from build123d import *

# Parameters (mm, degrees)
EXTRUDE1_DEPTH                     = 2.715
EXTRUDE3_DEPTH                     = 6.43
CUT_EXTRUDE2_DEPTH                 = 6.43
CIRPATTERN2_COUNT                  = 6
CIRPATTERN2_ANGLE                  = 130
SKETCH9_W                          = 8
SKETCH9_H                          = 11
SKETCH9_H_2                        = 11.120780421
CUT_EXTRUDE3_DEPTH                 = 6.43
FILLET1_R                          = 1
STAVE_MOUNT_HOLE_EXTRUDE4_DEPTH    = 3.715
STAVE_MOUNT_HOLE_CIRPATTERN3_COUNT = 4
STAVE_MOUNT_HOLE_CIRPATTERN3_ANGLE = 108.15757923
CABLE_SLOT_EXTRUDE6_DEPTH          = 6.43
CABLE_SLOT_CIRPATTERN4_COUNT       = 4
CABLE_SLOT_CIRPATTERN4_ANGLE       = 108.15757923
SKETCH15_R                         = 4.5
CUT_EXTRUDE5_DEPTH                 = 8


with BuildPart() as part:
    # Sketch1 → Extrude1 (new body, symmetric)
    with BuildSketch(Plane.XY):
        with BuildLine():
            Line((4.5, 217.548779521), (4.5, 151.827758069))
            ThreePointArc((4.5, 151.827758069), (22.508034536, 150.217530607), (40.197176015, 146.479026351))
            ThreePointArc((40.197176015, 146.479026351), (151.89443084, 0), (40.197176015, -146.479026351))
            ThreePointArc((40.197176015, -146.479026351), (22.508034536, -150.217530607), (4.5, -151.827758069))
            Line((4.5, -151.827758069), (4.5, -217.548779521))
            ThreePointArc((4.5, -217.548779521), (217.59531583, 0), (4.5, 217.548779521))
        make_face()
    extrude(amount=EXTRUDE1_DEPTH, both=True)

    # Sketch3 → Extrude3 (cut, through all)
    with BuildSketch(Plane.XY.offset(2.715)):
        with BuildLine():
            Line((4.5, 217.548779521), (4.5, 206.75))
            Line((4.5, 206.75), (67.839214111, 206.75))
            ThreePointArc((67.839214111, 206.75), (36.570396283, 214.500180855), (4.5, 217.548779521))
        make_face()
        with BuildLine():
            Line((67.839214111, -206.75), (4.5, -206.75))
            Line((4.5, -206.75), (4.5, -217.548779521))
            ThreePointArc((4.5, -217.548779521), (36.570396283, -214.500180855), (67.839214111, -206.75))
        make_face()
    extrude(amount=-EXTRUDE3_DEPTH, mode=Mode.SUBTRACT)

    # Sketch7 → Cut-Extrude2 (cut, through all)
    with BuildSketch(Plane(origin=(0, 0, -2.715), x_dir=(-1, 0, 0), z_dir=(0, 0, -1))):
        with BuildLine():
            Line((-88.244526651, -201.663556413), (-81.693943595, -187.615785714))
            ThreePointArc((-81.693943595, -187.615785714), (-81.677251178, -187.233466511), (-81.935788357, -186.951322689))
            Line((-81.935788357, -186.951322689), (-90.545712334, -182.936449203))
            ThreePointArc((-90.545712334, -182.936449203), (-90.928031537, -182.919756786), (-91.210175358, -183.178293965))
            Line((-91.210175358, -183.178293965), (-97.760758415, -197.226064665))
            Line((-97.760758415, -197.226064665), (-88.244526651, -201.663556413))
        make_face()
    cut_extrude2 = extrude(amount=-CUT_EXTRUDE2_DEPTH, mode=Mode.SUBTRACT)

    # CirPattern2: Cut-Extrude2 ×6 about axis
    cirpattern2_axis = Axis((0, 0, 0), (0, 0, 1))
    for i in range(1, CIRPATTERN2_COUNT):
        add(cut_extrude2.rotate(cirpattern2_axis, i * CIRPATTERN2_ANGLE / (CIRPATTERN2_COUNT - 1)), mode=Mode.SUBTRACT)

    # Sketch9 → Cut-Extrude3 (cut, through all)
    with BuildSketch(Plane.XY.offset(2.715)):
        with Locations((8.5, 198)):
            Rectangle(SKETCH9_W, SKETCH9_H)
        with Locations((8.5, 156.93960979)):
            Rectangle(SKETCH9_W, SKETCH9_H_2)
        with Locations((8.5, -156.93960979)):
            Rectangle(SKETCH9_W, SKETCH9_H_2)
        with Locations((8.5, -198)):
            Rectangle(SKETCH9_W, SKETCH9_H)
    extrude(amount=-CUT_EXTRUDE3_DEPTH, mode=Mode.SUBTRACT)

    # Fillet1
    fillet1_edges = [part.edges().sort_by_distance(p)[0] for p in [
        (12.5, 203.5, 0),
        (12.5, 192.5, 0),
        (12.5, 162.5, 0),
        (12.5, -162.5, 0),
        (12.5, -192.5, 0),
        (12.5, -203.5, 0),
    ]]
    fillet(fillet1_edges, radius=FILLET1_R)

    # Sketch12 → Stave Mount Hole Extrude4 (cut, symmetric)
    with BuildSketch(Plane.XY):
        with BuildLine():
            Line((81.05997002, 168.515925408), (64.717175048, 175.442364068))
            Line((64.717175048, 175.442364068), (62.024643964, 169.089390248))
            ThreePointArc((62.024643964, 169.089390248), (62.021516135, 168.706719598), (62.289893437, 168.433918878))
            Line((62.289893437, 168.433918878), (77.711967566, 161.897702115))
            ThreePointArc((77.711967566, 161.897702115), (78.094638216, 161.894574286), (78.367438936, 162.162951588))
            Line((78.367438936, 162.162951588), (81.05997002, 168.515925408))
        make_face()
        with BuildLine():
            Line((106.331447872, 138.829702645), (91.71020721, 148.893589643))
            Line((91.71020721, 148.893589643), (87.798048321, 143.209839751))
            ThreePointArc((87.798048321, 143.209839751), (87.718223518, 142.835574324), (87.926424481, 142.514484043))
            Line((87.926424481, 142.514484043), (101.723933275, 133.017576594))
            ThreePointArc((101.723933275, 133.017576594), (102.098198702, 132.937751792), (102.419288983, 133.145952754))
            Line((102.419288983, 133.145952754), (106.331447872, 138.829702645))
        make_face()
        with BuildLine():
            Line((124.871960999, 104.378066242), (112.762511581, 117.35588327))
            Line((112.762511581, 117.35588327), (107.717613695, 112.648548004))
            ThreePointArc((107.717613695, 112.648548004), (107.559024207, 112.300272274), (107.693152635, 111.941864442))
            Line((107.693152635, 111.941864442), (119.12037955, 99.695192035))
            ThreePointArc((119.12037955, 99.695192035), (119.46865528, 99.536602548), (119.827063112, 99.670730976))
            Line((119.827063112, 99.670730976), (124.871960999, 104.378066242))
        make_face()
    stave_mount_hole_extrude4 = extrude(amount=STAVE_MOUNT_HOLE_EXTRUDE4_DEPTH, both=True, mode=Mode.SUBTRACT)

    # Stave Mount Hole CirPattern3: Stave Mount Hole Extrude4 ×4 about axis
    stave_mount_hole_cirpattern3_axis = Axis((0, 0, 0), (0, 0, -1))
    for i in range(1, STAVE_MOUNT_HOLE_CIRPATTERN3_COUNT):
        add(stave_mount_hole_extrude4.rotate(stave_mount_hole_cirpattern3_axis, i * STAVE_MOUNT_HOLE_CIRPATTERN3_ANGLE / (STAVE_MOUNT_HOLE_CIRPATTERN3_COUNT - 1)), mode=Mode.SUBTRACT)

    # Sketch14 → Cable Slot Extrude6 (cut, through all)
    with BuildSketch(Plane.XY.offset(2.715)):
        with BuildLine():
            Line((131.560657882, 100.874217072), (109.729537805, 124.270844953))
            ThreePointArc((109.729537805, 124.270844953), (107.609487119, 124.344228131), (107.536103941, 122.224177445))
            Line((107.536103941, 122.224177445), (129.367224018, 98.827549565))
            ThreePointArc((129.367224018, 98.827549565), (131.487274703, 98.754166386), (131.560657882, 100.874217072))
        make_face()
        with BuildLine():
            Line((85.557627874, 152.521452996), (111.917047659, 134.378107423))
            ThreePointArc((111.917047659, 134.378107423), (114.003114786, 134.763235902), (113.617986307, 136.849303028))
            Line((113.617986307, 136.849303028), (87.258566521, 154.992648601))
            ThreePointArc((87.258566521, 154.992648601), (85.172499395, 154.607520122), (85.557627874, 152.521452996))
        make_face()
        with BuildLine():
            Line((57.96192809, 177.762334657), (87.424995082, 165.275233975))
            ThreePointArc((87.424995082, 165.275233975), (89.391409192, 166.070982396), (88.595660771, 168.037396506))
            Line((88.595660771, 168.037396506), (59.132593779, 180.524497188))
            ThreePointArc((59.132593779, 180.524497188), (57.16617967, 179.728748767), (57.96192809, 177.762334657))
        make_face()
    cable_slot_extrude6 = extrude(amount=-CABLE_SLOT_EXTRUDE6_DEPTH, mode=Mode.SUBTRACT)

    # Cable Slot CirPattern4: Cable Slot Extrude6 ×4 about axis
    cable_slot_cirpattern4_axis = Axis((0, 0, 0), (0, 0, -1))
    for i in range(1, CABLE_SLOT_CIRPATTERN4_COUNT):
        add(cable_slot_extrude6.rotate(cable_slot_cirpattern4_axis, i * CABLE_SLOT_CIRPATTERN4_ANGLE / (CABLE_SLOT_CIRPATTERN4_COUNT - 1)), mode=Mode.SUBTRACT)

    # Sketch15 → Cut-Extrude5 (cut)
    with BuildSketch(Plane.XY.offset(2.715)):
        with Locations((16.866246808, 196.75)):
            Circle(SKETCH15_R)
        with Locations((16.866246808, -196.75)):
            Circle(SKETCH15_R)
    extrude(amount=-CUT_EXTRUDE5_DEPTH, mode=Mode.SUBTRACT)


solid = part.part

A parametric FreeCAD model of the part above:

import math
import FreeCAD as App
import Part
import Sketcher
Q = App.Units.Quantity


def edges_at(feature, points):
    """Names of the edges that pass closest to the given points."""
    edges = feature.Shape.Edges
    near = lambda p: min(range(len(edges)), key=lambda i: edges[i].distToShape(Part.Vertex(*p))[0])
    return sorted({f"Edge{near(p) + 1}" for p in points})


def add_polygon(sketch, points):
    """Adds a closed chain of lines whose ends are joined by coincident constraints."""
    first, n = sketch.GeometryCount, len(points)
    for a, b in zip(points, points[1:] + points[:1]):
        sketch.addGeometry(Part.LineSegment(App.Vector(*a, 0), App.Vector(*b, 0)), False)
    for i in range(n):
        sketch.addConstraint(Sketcher.Constraint("Coincident", first + i, 2, first + (i + 1) % n, 1))

doc = App.newDocument("Part")
body = doc.addObject("PartDesign::Body", "Body")

# Sketch on XY plane
sketch1 = body.newObject("Sketcher::SketchObject", "Sketch")
sketch1.AttachmentSupport = (doc.getObject("XY_Plane"), [""])
sketch1.MapMode = "FlatFace"
sketch1.addGeometry([
    Part.LineSegment(App.Vector(4, 218, 0), App.Vector(4, 152, 0)),  # 0
    Part.ArcOfCircle(Part.Circle(App.Vector(0, 0, 0), App.Vector(0, 0, 1), 152), math.radians(74.65), math.radians(88.3)),  # 1
    Part.ArcOfCircle(Part.Circle(App.Vector(0, 0, 0), App.Vector(0, 0, 1), 152), math.radians(-75), math.radians(75)),  # 2
    Part.ArcOfCircle(Part.Circle(App.Vector(0, 0, 0), App.Vector(0, 0, 1), 152), math.radians(-88.3), math.radians(-74.65)),  # 3
    Part.LineSegment(App.Vector(4, -152, 0), App.Vector(4, -218, 0)),  # 4
    Part.ArcOfCircle(Part.Circle(App.Vector(0, 0, 0), App.Vector(0, 0, 1), 218), math.radians(-89), math.radians(89)),  # 5
], False)
sketch1.addConstraint([
    Sketcher.Constraint("Coincident", 0, 2, 1, 2),
    Sketcher.Constraint("Tangent", 1, 1, 2, 2),
    Sketcher.Constraint("Tangent", 2, 1, 3, 2),
    Sketcher.Constraint("Coincident", 3, 1, 4, 1),
    Sketcher.Constraint("Coincident", 4, 2, 5, 1),
    Sketcher.Constraint("Coincident", 5, 2, 0, 1),
    Sketcher.Constraint("Vertical", 0),
    Sketcher.Constraint("Vertical", 4),
    Sketcher.Constraint("Coincident", 1, 3, -1, 1),
    Sketcher.Constraint("Coincident", 3, 3, -1, 1),
    Sketcher.Constraint("Coincident", 5, 3, -1, 1),
    Sketcher.Constraint("Vertical", 1, 1, 2, 1),
    Sketcher.Constraint("Vertical", 0, 2, 3, 1),
    Sketcher.Constraint("DistanceX", -1, 1, 0, 2, Q("4.5 mm")),
    Sketcher.Constraint("Radius", 1, Q("151.894431 mm")),
    Sketcher.Constraint("Radius", 5, Q("217.595316 mm")),
    Sketcher.Constraint("DistanceY", 1, 1, 0, 2, Q("5.348732 mm")),
])
pad1 = body.newObject("PartDesign::Pad", "Pad")
pad1.Profile = sketch1
pad1.Length = 5.43
pad1.Midplane = True

# Sketch on XY plane
sketch2 = body.newObject("Sketcher::SketchObject", "Sketch001")
sketch2.AttachmentSupport = (doc.getObject("XY_Plane"), [""])
sketch2.MapMode = "FlatFace"
sketch2.AttachmentOffset = App.Placement(App.Vector(0, 0, 2.715), App.Rotation())
sketch2.addGeometry([
    Part.LineSegment(App.Vector(4, 218, 0), App.Vector(4, 207, 0)),  # 0
    Part.LineSegment(App.Vector(4, 207, 0), App.Vector(68, 207, 0)),  # 1
    Part.ArcOfCircle(Part.Circle(App.Vector(0, 0, 0), App.Vector(0, 0, 1), 218), math.radians(71.83), math.radians(88.82)),  # 2
    Part.LineSegment(App.Vector(68, -207, 0), App.Vector(4, -207, 0)),  # 3
    Part.LineSegment(App.Vector(4, -207, 0), App.Vector(4, -218, 0)),  # 4
    Part.ArcOfCircle(Part.Circle(App.Vector(0, 0, 0), App.Vector(0, 0, 1), 218), math.radians(-88.82), math.radians(-71.83)),  # 5
], False)
sketch2.addConstraint([
    Sketcher.Constraint("Coincident", 0, 2, 1, 1),
    Sketcher.Constraint("Coincident", 1, 2, 2, 1),
    Sketcher.Constraint("Coincident", 2, 2, 0, 1),
    Sketcher.Constraint("Coincident", 3, 2, 4, 1),
    Sketcher.Constraint("Coincident", 4, 2, 5, 1),
    Sketcher.Constraint("Coincident", 5, 2, 3, 1),
    Sketcher.Constraint("Vertical", 0),
    Sketcher.Constraint("Horizontal", 1),
    Sketcher.Constraint("Horizontal", 3),
    Sketcher.Constraint("Vertical", 4),
    Sketcher.Constraint("Coincident", 2, 3, -1, 1),
    Sketcher.Constraint("Coincident", 5, 3, -1, 1),
    Sketcher.Constraint("Equal", 2, 5),
    Sketcher.Constraint("Symmetric", 0, 2, 3, 2, -1),
    Sketcher.Constraint("DistanceX", -1, 1, 0, 2, Q("4.5 mm")),
    Sketcher.Constraint("DistanceY", 3, 2, 0, 2, Q("413.5 mm")),
    Sketcher.Constraint("Radius", 2, Q("217.595316 mm")),
])
pocket1 = body.newObject("PartDesign::Pocket", "Pocket")
pocket1.Profile = sketch2
pocket1.Type = "ThroughAll"

# Sketch on XY plane
sketch3 = body.newObject("Sketcher::SketchObject", "Sketch002")
sketch3.AttachmentSupport = (doc.getObject("XY_Plane"), [""])
sketch3.MapMode = "FlatFace"
sketch3.AttachmentOffset = App.Placement(App.Vector(0, 0, -2.715), App.Rotation())
sketch3.addGeometry([
    Part.LineSegment(App.Vector(88.24, -201.66, 0), App.Vector(81.69, -187.62, 0)),  # 0
    Part.ArcOfCircle(Part.Circle(App.Vector(82.15, -187.4, 0), App.Vector(0, 0, 1), 0.5), math.radians(115), math.radians(205)),  # 1
    Part.LineSegment(App.Vector(81.94, -186.95, 0), App.Vector(90.55, -182.94, 0)),  # 2
    Part.ArcOfCircle(Part.Circle(App.Vector(90.76, -183.39, 0), App.Vector(0, 0, 1), 0.5), math.radians(25), math.radians(115)),  # 3
    Part.LineSegment(App.Vector(91.21, -183.18, 0), App.Vector(97.76, -197.23, 0)),  # 4
    Part.LineSegment(App.Vector(97.76, -197.23, 0), App.Vector(88.24, -201.66, 0)),  # 5
], False)
sketch3.addConstraint([
    Sketcher.Constraint("Tangent", 0, 2, 1, 2),
    Sketcher.Constraint("Tangent", 1, 1, 2, 1),
    Sketcher.Constraint("Tangent", 2, 2, 3, 2),
    Sketcher.Constraint("Tangent", 3, 1, 4, 1),
    Sketcher.Constraint("Coincident", 4, 2, 5, 1),
    Sketcher.Constraint("Coincident", 5, 2, 0, 1),
    Sketcher.Constraint("Equal", 1, 3),
    Sketcher.Constraint("Perpendicular", 0, 2),
    Sketcher.Constraint("Perpendicular", 2, 4),
    Sketcher.Constraint("Perpendicular", 4, 5),
    Sketcher.Constraint("Radius", 1, Q("0.5 mm")),
    Sketcher.Constraint("Angle", 0, Q("115 deg")),
    Sketcher.Constraint("Distance", 0, Q("15.5 mm")),
    Sketcher.Constraint("Distance", 2, Q("9.5 mm")),
    Sketcher.Constraint("DistanceX", -1, 1, 3, 3, Q("90.757021 mm")),
    Sketcher.Constraint("DistanceY", 2, 2, -1, 1, Q("182.936449 mm")),
])
pocket2 = body.newObject("PartDesign::Pocket", "Pocket001")
pocket2.Profile = sketch3
pocket2.Type = "ThroughAll"
pocket2.Reversed = True
doc.recompute()

polarpattern = body.newObject("PartDesign::PolarPattern", "PolarPattern")
polarpattern.Originals = [pocket2]
polarpattern.Axis = (doc.getObject("Z_Axis"), [""])
polarpattern.Angle = 130
polarpattern.Occurrences = 6
body.Tip = polarpattern

# Sketch on XY plane
sketch4 = body.newObject("Sketcher::SketchObject", "Sketch003")
sketch4.AttachmentSupport = (doc.getObject("XY_Plane"), [""])
sketch4.MapMode = "FlatFace"
sketch4.AttachmentOffset = App.Placement(App.Vector(0, 0, 2.715), App.Rotation())
add_polygon(sketch4, [(4, 204), (4, 192), (12, 192), (12, 204)])  # lines 0-3
add_polygon(sketch4, [(4, 162), (4, 151), (12, 151), (12, 162)])  # lines 4-7
add_polygon(sketch4, [(4, -151), (4, -162), (12, -162), (12, -151)])  # lines 8-11
add_polygon(sketch4, [(4, -192), (4, -204), (12, -204), (12, -192)])  # lines 12-15
sketch4.addConstraint([
    Sketcher.Constraint("Vertical", 0),
    Sketcher.Constraint("Horizontal", 1),
    Sketcher.Constraint("Vertical", 2),
    Sketcher.Constraint("Horizontal", 3),
    Sketcher.Constraint("Vertical", 4),
    Sketcher.Constraint("Horizontal", 5),
    Sketcher.Constraint("Vertical", 6),
    Sketcher.Constraint("Horizontal", 7),
    Sketcher.Constraint("Vertical", 8),
    Sketcher.Constraint("Horizontal", 9),
    Sketcher.Constraint("Vertical", 10),
    Sketcher.Constraint("Horizontal", 11),
    Sketcher.Constraint("Vertical", 12),
    Sketcher.Constraint("Horizontal", 13),
    Sketcher.Constraint("Vertical", 14),
    Sketcher.Constraint("Horizontal", 15),
    Sketcher.Constraint("Symmetric", 7, 2, 8, 2, -1),
    Sketcher.Constraint("Symmetric", 5, 2, 10, 2, -1),
    Sketcher.Constraint("Symmetric", 3, 2, 12, 2, -1),
    Sketcher.Constraint("Symmetric", 1, 2, 14, 2, -1),
    Sketcher.Constraint("Vertical", 3, 2, 4, 2),
    Sketcher.Constraint("Vertical", 2, 2, 5, 2),
    Sketcher.Constraint("DistanceX", 1, 1, 1, 2, Q("8 mm")),
    Sketcher.Constraint("DistanceY", 0, 2, 0, 1, Q("11 mm")),
    Sketcher.Constraint("DistanceY", 6, 2, 1, 2, Q("30 mm")),
    Sketcher.Constraint("DistanceY", 8, 2, 7, 2, Q("325 mm")),
    Sketcher.Constraint("DistanceX", -1, 1, 0, 2, Q("4.5 mm")),
    Sketcher.Constraint("DistanceY", 4, 2, 4, 1, Q("11.12078 mm")),
])
pocket3 = body.newObject("PartDesign::Pocket", "Pocket002")
pocket3.Profile = sketch4
pocket3.Type = "ThroughAll"
doc.recompute()

fillet = body.newObject("PartDesign::Fillet", "Fillet")
fillet.Base = (pocket3, edges_at(pocket3, [
    (12.5, 203.5, 0),
    (12.5, 192.5, 0),
    (12.5, 162.5, 0),
    (12.5, -162.5, 0),
    (12.5, -192.5, 0),
    (12.5, -203.5, 0),
]))
fillet.Radius = 1

# Sketch on XY plane
sketch5 = body.newObject("Sketcher::SketchObject", "Sketch004")
sketch5.AttachmentSupport = (doc.getObject("XY_Plane"), [""])
sketch5.MapMode = "FlatFace"
sketch5.addGeometry([
    Part.LineSegment(App.Vector(81.06, 168.52, 0), App.Vector(64.72, 175.44, 0)),  # 0
    Part.LineSegment(App.Vector(64.72, 175.44, 0), App.Vector(62.02, 169.09, 0)),  # 1
    Part.ArcOfCircle(Part.Circle(App.Vector(62.49, 168.89, 0), App.Vector(0, 0, 1), 0.5), math.radians(157), math.radians(247)),  # 2
    Part.LineSegment(App.Vector(62.29, 168.43, 0), App.Vector(77.71, 161.9, 0)),  # 3
    Part.ArcOfCircle(Part.Circle(App.Vector(77.91, 162.36, 0), App.Vector(0, 0, 1), 0.5), math.radians(-113), math.radians(-23)),  # 4
    Part.LineSegment(App.Vector(78.37, 162.16, 0), App.Vector(81.06, 168.52, 0)),  # 5
    Part.LineSegment(App.Vector(106.33, 138.83, 0), App.Vector(91.71, 148.89, 0)),  # 6
    Part.LineSegment(App.Vector(91.71, 148.89, 0), App.Vector(87.8, 143.21, 0)),  # 7
    Part.ArcOfCircle(Part.Circle(App.Vector(88.21, 142.93, 0), App.Vector(0, 0, 1), 0.5), math.radians(145), math.radians(235)),  # 8
    Part.LineSegment(App.Vector(87.93, 142.51, 0), App.Vector(101.72, 133.02, 0)),  # 9
    Part.ArcOfCircle(Part.Circle(App.Vector(102.01, 133.43, 0), App.Vector(0, 0, 1), 0.5), math.radians(-125), math.radians(-35)),  # 10
    Part.LineSegment(App.Vector(102.42, 133.15, 0), App.Vector(106.33, 138.83, 0)),  # 11
    Part.LineSegment(App.Vector(124.87, 104.38, 0), App.Vector(112.76, 117.36, 0)),  # 12
    Part.LineSegment(App.Vector(112.76, 117.36, 0), App.Vector(107.72, 112.65, 0)),  # 13
    Part.ArcOfCircle(Part.Circle(App.Vector(108.06, 112.28, 0), App.Vector(0, 0, 1), 0.5), math.radians(133), math.radians(223)),  # 14
    Part.LineSegment(App.Vector(107.69, 111.94, 0), App.Vector(119.12, 99.7, 0)),  # 15
    Part.ArcOfCircle(Part.Circle(App.Vector(119.49, 100.04, 0), App.Vector(0, 0, 1), 0.5), math.radians(-137), math.radians(-47)),  # 16
    Part.LineSegment(App.Vector(119.83, 99.67, 0), App.Vector(124.87, 104.38, 0)),  # 17
], False)
sketch5.addConstraint([
    Sketcher.Constraint("Coincident", 0, 2, 1, 1),
    Sketcher.Constraint("Tangent", 1, 2, 2, 1),
    Sketcher.Constraint("Tangent", 2, 2, 3, 1),
    Sketcher.Constraint("Tangent", 3, 2, 4, 1),
    Sketcher.Constraint("Tangent", 4, 2, 5, 1),
    Sketcher.Constraint("Coincident", 5, 2, 0, 1),
    Sketcher.Constraint("Coincident", 6, 2, 7, 1),
    Sketcher.Constraint("Tangent", 7, 2, 8, 1),
    Sketcher.Constraint("Tangent", 8, 2, 9, 1),
    Sketcher.Constraint("Tangent", 9, 2, 10, 1),
    Sketcher.Constraint("Tangent", 10, 2, 11, 1),
    Sketcher.Constraint("Coincident", 11, 2, 6, 1),
    Sketcher.Constraint("Coincident", 12, 2, 13, 1),
    Sketcher.Constraint("Tangent", 13, 2, 14, 1),
    Sketcher.Constraint("Tangent", 14, 2, 15, 1),
    Sketcher.Constraint("Tangent", 15, 2, 16, 1),
    Sketcher.Constraint("Tangent", 16, 2, 17, 1),
    Sketcher.Constraint("Coincident", 17, 2, 12, 1),
    Sketcher.Constraint("Equal", 2, 4),
    Sketcher.Constraint("Equal", 4, 8),
    Sketcher.Constraint("Equal", 8, 10),
    Sketcher.Constraint("Equal", 10, 14),
    Sketcher.Constraint("Equal", 14, 16),
    Sketcher.Constraint("Perpendicular", 0, 1),
    Sketcher.Constraint("Perpendicular", 1, 3),
    Sketcher.Constraint("Perpendicular", 3, 5),
    Sketcher.Constraint("Perpendicular", 6, 7),
    Sketcher.Constraint("Perpendicular", 7, 9),
    Sketcher.Constraint("Perpendicular", 9, 11),
    Sketcher.Constraint("Perpendicular", 12, 13),
    Sketcher.Constraint("Perpendicular", 13, 15),
    Sketcher.Constraint("Perpendicular", 15, 17),
    Sketcher.Constraint("Equal", 0, 6),
    Sketcher.Constraint("Equal", 5, 7),
    Sketcher.Constraint("Equal", 6, 12),
    Sketcher.Constraint("Equal", 11, 13),
    Sketcher.Constraint("Radius", 2, Q("0.5 mm")),
    Sketcher.Constraint("Distance", 1, Q("6.9 mm")),
    Sketcher.Constraint("Distance", 0, Q("17.75 mm")),
    Sketcher.Constraint("DistanceX", 8, 2, 10, 3, Q("14.080999 mm")),
    Sketcher.Constraint("DistanceX", 10, 3, 14, 3, Q("6.051302 mm")),
    Sketcher.Constraint("DistanceY", 4, 3, 0, 2, Q("13.084302 mm")),
    Sketcher.Constraint("DistanceX", 14, 2, 16, 3, Q("11.792799 mm")),
    Sketcher.Constraint("DistanceY", -1, 1, 2, 3, Q("168.894279 mm")),
    Sketcher.Constraint("DistanceX", -1, 1, 4, 3, Q("77.907079 mm")),
    Sketcher.Constraint("DistanceY", -1, 1, 8, 3, Q("142.92635 mm")),
    Sketcher.Constraint("DistanceX", -1, 1, 16, 3, Q("119.485952 mm")),
    Sketcher.Constraint("DistanceY", -1, 1, 13, 2, Q("112.648548 mm")),
])
pocket4 = body.newObject("PartDesign::Pocket", "Pocket003")
pocket4.Profile = sketch5
pocket4.Length = 7.43
pocket4.Midplane = True
doc.recompute()

polarpattern2 = body.newObject("PartDesign::PolarPattern", "PolarPattern001")
polarpattern2.Originals = [pocket4]
polarpattern2.Axis = (doc.getObject("Z_Axis"), [""])
polarpattern2.Angle = 108.157579
polarpattern2.Occurrences = 4
polarpattern2.Reversed = True
body.Tip = polarpattern2

# Sketch on XY plane
sketch6 = body.newObject("Sketcher::SketchObject", "Sketch005")
sketch6.AttachmentSupport = (doc.getObject("XY_Plane"), [""])
sketch6.MapMode = "FlatFace"
sketch6.AttachmentOffset = App.Placement(App.Vector(0, 0, 2.715), App.Rotation())
sketch6.addGeometry([
    Part.LineSegment(App.Vector(131.6, 100.9, 0), App.Vector(109.7, 124.3, 0)),  # 0
    Part.ArcOfCircle(Part.Circle(App.Vector(108.6, 123.2, 0), App.Vector(0, 0, 1), 1.5), math.radians(43), math.radians(223)),  # 1
    Part.LineSegment(App.Vector(107.5, 122.2, 0), App.Vector(129.4, 98.8, 0)),  # 2
    Part.ArcOfCircle(Part.Circle(App.Vector(130.5, 99.9, 0), App.Vector(0, 0, 1), 1.5), math.radians(-137), math.radians(43)),  # 3
    Part.LineSegment(App.Vector(85.6, 152.5, 0), App.Vector(111.9, 134.4, 0)),  # 4
    Part.ArcOfCircle(Part.Circle(App.Vector(112.8, 135.6, 0), App.Vector(0, 0, 1), 1.5), math.radians(-125), math.radians(55)),  # 5
    Part.LineSegment(App.Vector(113.6, 136.8, 0), App.Vector(87.3, 155, 0)),  # 6
    Part.ArcOfCircle(Part.Circle(App.Vector(86.4, 153.8, 0), App.Vector(0, 0, 1), 1.5), math.radians(55), math.radians(235)),  # 7
    Part.LineSegment(App.Vector(58, 177.8, 0), App.Vector(87.4, 165.3, 0)),  # 8
    Part.ArcOfCircle(Part.Circle(App.Vector(88, 166.7, 0), App.Vector(0, 0, 1), 1.5), math.radians(-113), math.radians(67)),  # 9
    Part.LineSegment(App.Vector(88.6, 168, 0), App.Vector(59.1, 180.5, 0)),  # 10
    Part.ArcOfCircle(Part.Circle(App.Vector(58.5, 179.1, 0), App.Vector(0, 0, 1), 1.5), math.radians(67), math.radians(247)),  # 11
], False)
sketch6.addConstraint([
    Sketcher.Constraint("Tangent", 0, 2, 1, 1),
    Sketcher.Constraint("Tangent", 1, 2, 2, 1),
    Sketcher.Constraint("Tangent", 2, 2, 3, 1),
    Sketcher.Constraint("Tangent", 3, 2, 0, 1),
    Sketcher.Constraint("Tangent", 4, 2, 5, 1),
    Sketcher.Constraint("Tangent", 5, 2, 6, 1),
    Sketcher.Constraint("Tangent", 6, 2, 7, 1),
    Sketcher.Constraint("Tangent", 7, 2, 4, 1),
    Sketcher.Constraint("Tangent", 8, 2, 9, 1),
    Sketcher.Constraint("Tangent", 9, 2, 10, 1),
    Sketcher.Constraint("Tangent", 10, 2, 11, 1),
    Sketcher.Constraint("Tangent", 11, 2, 8, 1),
    Sketcher.Constraint("Equal", 1, 3),
    Sketcher.Constraint("Equal", 3, 5),
    Sketcher.Constraint("Equal", 5, 7),
    Sketcher.Constraint("Equal", 7, 9),
    Sketcher.Constraint("Equal", 9, 11),
    Sketcher.Constraint("Equal", 2, 4),
    Sketcher.Constraint("Equal", 6, 8),
    Sketcher.Constraint("Radius", 1, Q("1.5 mm")),
    Sketcher.Constraint("Distance", 0, Q("32 mm")),
    Sketcher.Constraint("DistanceY", 9, 3, 11, 3, Q("12.487101 mm")),
    Sketcher.Constraint("DistanceX", 7, 2, 9, 3, Q("2.4527 mm")),
    Sketcher.Constraint("DistanceX", -1, 1, 1, 3, Q("108.632821 mm")),
    Sketcher.Constraint("DistanceY", -1, 1, 1, 3, Q("123.247511 mm")),
    Sketcher.Constraint("DistanceX", -1, 1, 3, 3, Q("130.463941 mm")),
    Sketcher.Constraint("DistanceY", -1, 1, 7, 3, Q("153.757051 mm")),
    Sketcher.Constraint("DistanceX", -1, 1, 11, 3, Q("58.547261 mm")),
    Sketcher.Constraint("DistanceY", -1, 1, 6, 2, Q("154.992649 mm")),
    Sketcher.Constraint("DistanceY", 5, 3, 9, 3, Q("31.04261 mm")),
])
pocket5 = body.newObject("PartDesign::Pocket", "Pocket004")
pocket5.Profile = sketch6
pocket5.Type = "ThroughAll"
doc.recompute()

polarpattern3 = body.newObject("PartDesign::PolarPattern", "PolarPattern002")
polarpattern3.Originals = [pocket5]
polarpattern3.Axis = (doc.getObject("Z_Axis"), [""])
polarpattern3.Angle = 108.157579
polarpattern3.Occurrences = 4
polarpattern3.Reversed = True
body.Tip = polarpattern3

# Sketch on XY plane
sketch7 = body.newObject("Sketcher::SketchObject", "Sketch006")
sketch7.AttachmentSupport = (doc.getObject("XY_Plane"), [""])
sketch7.MapMode = "FlatFace"
sketch7.AttachmentOffset = App.Placement(App.Vector(0, 0, 2.715), App.Rotation())
sketch7.addGeometry([
    Part.Circle(App.Vector(16.9, 196.8, 0), App.Vector(0, 0, 1), 4.5),
    Part.Circle(App.Vector(16.9, -196.8, 0), App.Vector(0, 0, 1), 4.5),
], False)
sketch7.addConstraint([
    Sketcher.Constraint("Equal", 0, 1),
    Sketcher.Constraint("Symmetric", 0, 3, 1, 3, -1),
    Sketcher.Constraint("Diameter", 0, Q("9 mm")),
    Sketcher.Constraint("DistanceY", 1, 3, 0, 3, Q("393.5 mm")),
    Sketcher.Constraint("DistanceX", -1, 1, 0, 3, Q("16.866247 mm")),
])
pocket6 = body.newObject("PartDesign::Pocket", "Pocket005")
pocket6.Profile = sketch7
pocket6.Length = 8

doc.recompute()
